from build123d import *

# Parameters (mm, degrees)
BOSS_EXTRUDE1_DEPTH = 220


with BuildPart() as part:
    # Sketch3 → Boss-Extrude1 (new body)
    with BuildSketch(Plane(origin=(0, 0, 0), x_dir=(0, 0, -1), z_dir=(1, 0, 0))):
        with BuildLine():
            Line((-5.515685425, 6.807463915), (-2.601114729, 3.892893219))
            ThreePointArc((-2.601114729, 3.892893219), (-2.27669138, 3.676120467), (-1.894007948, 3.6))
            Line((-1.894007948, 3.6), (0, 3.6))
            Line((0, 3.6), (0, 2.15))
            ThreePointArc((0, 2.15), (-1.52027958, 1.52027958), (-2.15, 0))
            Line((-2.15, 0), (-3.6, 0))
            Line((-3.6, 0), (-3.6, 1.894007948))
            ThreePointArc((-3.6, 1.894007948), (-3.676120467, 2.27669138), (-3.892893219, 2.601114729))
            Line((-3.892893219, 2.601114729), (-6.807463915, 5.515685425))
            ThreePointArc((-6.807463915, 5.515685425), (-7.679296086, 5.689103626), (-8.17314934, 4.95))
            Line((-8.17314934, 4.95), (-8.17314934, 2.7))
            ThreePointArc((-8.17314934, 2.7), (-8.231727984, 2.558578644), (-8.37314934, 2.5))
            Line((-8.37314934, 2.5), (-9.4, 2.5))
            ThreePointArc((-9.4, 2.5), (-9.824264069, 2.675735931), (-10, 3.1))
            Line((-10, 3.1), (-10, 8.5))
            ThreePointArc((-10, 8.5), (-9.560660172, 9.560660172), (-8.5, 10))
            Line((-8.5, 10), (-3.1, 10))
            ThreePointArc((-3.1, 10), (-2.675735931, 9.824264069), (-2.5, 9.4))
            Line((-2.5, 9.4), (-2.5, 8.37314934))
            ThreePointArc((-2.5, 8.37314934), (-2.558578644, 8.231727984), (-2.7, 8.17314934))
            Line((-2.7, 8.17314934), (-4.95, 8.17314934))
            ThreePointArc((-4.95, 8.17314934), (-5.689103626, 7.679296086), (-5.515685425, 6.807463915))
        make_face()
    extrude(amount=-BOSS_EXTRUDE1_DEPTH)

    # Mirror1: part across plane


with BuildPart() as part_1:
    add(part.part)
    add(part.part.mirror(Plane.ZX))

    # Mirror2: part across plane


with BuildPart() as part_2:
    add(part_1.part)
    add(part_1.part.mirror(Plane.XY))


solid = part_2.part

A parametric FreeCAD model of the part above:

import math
import FreeCAD as App
import Part
import Sketcher

V = App.Vector
Q = App.Units.Quantity

doc = App.newDocument("Part")
params = doc.addObject("Spreadsheet::Sheet", "Params")
for row, (alias, value) in enumerate([
    ("sketch1_radius", "1 mm"),
    ("sketch1_radius2", "0.8 mm"),
    ("sketch1_radius3", "0.2 mm"),
    ("sketch1_radius4", "0.6 mm"),
    ("sketch1_radius5", "1.5 mm"),
    ("pad1_length", "220 mm"),
], start=1):
    params.set(f"A{row}", alias)
    params.set(f"B{row}", "=" + value)
    params.setAlias(f"B{row}", alias)

body = doc.addObject("PartDesign::Body", "Body")

# Sketch on YZ plane
sketch1 = body.newObject("Sketcher::SketchObject", "Sketch")
sketch1.AttachmentSupport = (doc.getObject("YZ_Plane"), [""])
sketch1.MapMode = "FlatFace"
sketch1.addGeometry([
    Part.LineSegment(V(3.89, 2.6, 0), V(6.81, 5.52, 0)),  # 0
    Part.ArcOfCircle(Part.Circle(V(7.37, 4.95, 0), V(0, 0, 1), 0.8), math.radians(0), math.radians(135)),  # 1
    Part.LineSegment(V(8.17, 4.95, 0), V(8.17, 2.7, 0)),  # 2
    Part.ArcOfCircle(Part.Circle(V(8.37, 2.7, 0), V(0, 0, 1), 0.2), math.radians(-180), math.radians(-90)),  # 3
    Part.LineSegment(V(8.37, 2.5, 0), V(9.4, 2.5, 0)),  # 4
    Part.ArcOfCircle(Part.Circle(V(9.4, 3.1, 0), V(0, 0, 1), 0.6), math.radians(-90), math.radians(0)),  # 5
    Part.LineSegment(V(10, 3.1, 0), V(10, 8.5, 0)),  # 6
    Part.ArcOfCircle(Part.Circle(V(8.5, 8.5, 0), V(0, 0, 1), 1.5), math.radians(0), math.radians(90)),  # 7
    Part.LineSegment(V(8.5, 10, 0), V(3.1, 10, 0)),  # 8
    Part.ArcOfCircle(Part.Circle(V(3.1, 9.4, 0), V(0, 0, 1), 0.6), math.radians(90), math.radians(180)),  # 9
    Part.LineSegment(V(2.5, 9.4, 0), V(2.5, 8.37, 0)),  # 10
    Part.ArcOfCircle(Part.Circle(V(2.7, 8.37, 0), V(0, 0, 1), 0.2), math.radians(-180), math.radians(-90)),  # 11
    Part.LineSegment(V(2.7, 8.17, 0), V(4.95, 8.17, 0)),  # 12
    Part.ArcOfCircle(Part.Circle(V(4.95, 7.37, 0), V(0, 0, 1), 0.8), math.radians(-45), math.radians(90)),  # 13
    Part.LineSegment(V(5.52, 6.81, 0), V(2.6, 3.89, 0)),  # 14
    Part.ArcOfCircle(Part.Circle(V(1.89, 4.6, 0), V(0, 0, 1), 1), math.radians(-90), math.radians(-45)),  # 15
    Part.LineSegment(V(1.89, 3.6, 0), V(0, 3.6, 0)),  # 16
    Part.LineSegment(V(0, 3.6, 0), V(0, 2.15, 0)),  # 17
    Part.ArcOfCircle(Part.Circle(V(0, 0, 0), V(0, 0, 1), 2.15), math.radians(0), math.radians(90)),  # 18
    Part.LineSegment(V(2.15, 0, 0), V(3.6, 0, 0)),  # 19
    Part.LineSegment(V(3.6, 0, 0), V(3.6, 1.89, 0)),  # 20
    Part.ArcOfCircle(Part.Circle(V(4.6, 1.89, 0), V(0, 0, 1), 1), math.radians(135), math.radians(180)),  # 21
], False)
sketch1.addConstraint([
    Sketcher.Constraint("Tangent", 0, 2, 1, 2),
    Sketcher.Constraint("Tangent", 1, 1, 2, 1),
    Sketcher.Constraint("Tangent", 2, 2, 3, 1),
    Sketcher.Constraint("Tangent", 3, 2, 4, 1),
    Sketcher.Constraint("Tangent", 4, 2, 5, 1),
    Sketcher.Constraint("Tangent", 5, 2, 6, 1),
    Sketcher.Constraint("Tangent", 6, 2, 7, 1),
    Sketcher.Constraint("Tangent", 7, 2, 8, 1),
    Sketcher.Constraint("Tangent", 8, 2, 9, 1),
    Sketcher.Constraint("Tangent", 9, 2, 10, 1),
    Sketcher.Constraint("Tangent", 10, 2, 11, 1),
    Sketcher.Constraint("Tangent", 11, 2, 12, 1),
    Sketcher.Constraint("Tangent", 12, 2, 13, 2),
    Sketcher.Constraint("Tangent", 13, 1, 14, 1),
    Sketcher.Constraint("Tangent", 14, 2, 15, 2),
    Sketcher.Constraint("Tangent", 15, 1, 16, 1),
    Sketcher.Constraint("Coincident", 16, 2, 17, 1),
    Sketcher.Constraint("Coincident", 17, 2, 18, 2),
    Sketcher.Constraint("Coincident", 18, 1, 19, 1),
    Sketcher.Constraint("Coincident", 19, 2, 20, 1),
    Sketcher.Constraint("Tangent", 20, 2, 21, 2),
    Sketcher.Constraint("Tangent", 21, 1, 0, 1),
    Sketcher.Constraint("Vertical", 2),
    Sketcher.Constraint("Horizontal", 4),
    Sketcher.Constraint("Vertical", 6),
    Sketcher.Constraint("Horizontal", 8),
    Sketcher.Constraint("Vertical", 10),
    Sketcher.Constraint("Horizontal", 12),
    Sketcher.Constraint("Horizontal", 16),
    Sketcher.Constraint("Vertical", 17),
    Sketcher.Constraint("Horizontal", 19),
    Sketcher.Constraint("Vertical", 20),
    Sketcher.Constraint("Coincident", 18, 3, -1, 1),
    Sketcher.Constraint("Equal", 5, 9),
    Sketcher.Constraint("Equal", 3, 11),
    Sketcher.Constraint("Equal", 1, 13),
    Sketcher.Constraint("Equal", 15, 21),
    Sketcher.Constraint("PointOnObject", 16, 2, -2),
    Sketcher.Constraint("PointOnObject", 18, 1, -1),
    Sketcher.Constraint("Parallel", 0, 14),
    Sketcher.Constraint("Equal", 12, 2),
    Sketcher.Constraint("Equal", 8, 6),
    Sketcher.Constraint("Equal", 4, 10),
    Sketcher.Constraint("Equal", 19, 17),
    Sketcher.Constraint("Equal", 16, 20),
    Sketcher.Constraint("Equal", 0, 14),
    Sketcher.Constraint("Radius", 15, Q("1 mm")),
    Sketcher.Constraint("Radius", 1, Q("0.8 mm")),
    Sketcher.Constraint("Radius", 3, Q("0.2 mm")),
    Sketcher.Constraint("Radius", 5, Q("0.6 mm")),
    Sketcher.Constraint("Radius", 7, Q("1.5 mm")),
    Sketcher.Constraint("Radius", 18, Q("2.15 mm")),
    Sketcher.Constraint("DistanceX", 8, 2, 8, 1, Q("5.4 mm")),
    Sketcher.Constraint("DistanceX", -1, 1, 5, 2, Q("10 mm")),
    Sketcher.Constraint("DistanceX", 12, 1, 12, 2, Q("2.25 mm")),
    Sketcher.Constraint("DistanceX", 19, 1, 19, 2, Q("1.45 mm")),
    Sketcher.Constraint("DistanceX", 4, 1, 4, 2, Q("1.026851 mm")),
])
sketch1.setExpression("Constraints[46]", "Params.sketch1_radius")
sketch1.setExpression("Constraints[47]", "Params.sketch1_radius2")
sketch1.setExpression("Constraints[48]", "Params.sketch1_radius3")
sketch1.setExpression("Constraints[49]", "Params.sketch1_radius4")
sketch1.setExpression("Constraints[50]", "Params.sketch1_radius5")
pad1 = body.newObject("PartDesign::Pad", "Pad")
pad1.Profile = sketch1
pad1.setExpression("Length", "Params.pad1_length")
pad1.Reversed = True
body2 = doc.addObject("PartDesign::Body", "Body001")
doc.recompute()

body2.BaseFeature = body
doc.recompute()

mirroring = doc.addObject("Part::Mirroring", "Mirroring")
mirroring.Source = body
mirroring.Base = V(0, 0, 0)
mirroring.Normal = V(0, 1, 0)
body3 = doc.addObject("PartDesign::Body", "Body002")
body3.BaseFeature = mirroring
boolean = body2.newObject("PartDesign::Boolean", "Boolean")
boolean.Type = "Fuse"
boolean.addObjects([body3])
doc.recompute()
body4 = doc.addObject("PartDesign::Body", "Body003")
doc.recompute()

body4.BaseFeature = body2
doc.recompute()

mirroring2 = doc.addObject("Part::Mirroring", "Mirroring001")
mirroring2.Source = body2
mirroring2.Base = V(0, 0, 0)
mirroring2.Normal = V(0, 0, 1)
body5 = doc.addObject("PartDesign::Body", "Body004")
body5.BaseFeature = mirroring2
boolean2 = body4.newObject("PartDesign::Boolean", "Boolean001")
boolean2.Type = "Fuse"
boolean2.addObjects([body5])
doc.recompute()
mirroring.Visibility = False
mirroring2.Visibility = False

doc.recompute()
